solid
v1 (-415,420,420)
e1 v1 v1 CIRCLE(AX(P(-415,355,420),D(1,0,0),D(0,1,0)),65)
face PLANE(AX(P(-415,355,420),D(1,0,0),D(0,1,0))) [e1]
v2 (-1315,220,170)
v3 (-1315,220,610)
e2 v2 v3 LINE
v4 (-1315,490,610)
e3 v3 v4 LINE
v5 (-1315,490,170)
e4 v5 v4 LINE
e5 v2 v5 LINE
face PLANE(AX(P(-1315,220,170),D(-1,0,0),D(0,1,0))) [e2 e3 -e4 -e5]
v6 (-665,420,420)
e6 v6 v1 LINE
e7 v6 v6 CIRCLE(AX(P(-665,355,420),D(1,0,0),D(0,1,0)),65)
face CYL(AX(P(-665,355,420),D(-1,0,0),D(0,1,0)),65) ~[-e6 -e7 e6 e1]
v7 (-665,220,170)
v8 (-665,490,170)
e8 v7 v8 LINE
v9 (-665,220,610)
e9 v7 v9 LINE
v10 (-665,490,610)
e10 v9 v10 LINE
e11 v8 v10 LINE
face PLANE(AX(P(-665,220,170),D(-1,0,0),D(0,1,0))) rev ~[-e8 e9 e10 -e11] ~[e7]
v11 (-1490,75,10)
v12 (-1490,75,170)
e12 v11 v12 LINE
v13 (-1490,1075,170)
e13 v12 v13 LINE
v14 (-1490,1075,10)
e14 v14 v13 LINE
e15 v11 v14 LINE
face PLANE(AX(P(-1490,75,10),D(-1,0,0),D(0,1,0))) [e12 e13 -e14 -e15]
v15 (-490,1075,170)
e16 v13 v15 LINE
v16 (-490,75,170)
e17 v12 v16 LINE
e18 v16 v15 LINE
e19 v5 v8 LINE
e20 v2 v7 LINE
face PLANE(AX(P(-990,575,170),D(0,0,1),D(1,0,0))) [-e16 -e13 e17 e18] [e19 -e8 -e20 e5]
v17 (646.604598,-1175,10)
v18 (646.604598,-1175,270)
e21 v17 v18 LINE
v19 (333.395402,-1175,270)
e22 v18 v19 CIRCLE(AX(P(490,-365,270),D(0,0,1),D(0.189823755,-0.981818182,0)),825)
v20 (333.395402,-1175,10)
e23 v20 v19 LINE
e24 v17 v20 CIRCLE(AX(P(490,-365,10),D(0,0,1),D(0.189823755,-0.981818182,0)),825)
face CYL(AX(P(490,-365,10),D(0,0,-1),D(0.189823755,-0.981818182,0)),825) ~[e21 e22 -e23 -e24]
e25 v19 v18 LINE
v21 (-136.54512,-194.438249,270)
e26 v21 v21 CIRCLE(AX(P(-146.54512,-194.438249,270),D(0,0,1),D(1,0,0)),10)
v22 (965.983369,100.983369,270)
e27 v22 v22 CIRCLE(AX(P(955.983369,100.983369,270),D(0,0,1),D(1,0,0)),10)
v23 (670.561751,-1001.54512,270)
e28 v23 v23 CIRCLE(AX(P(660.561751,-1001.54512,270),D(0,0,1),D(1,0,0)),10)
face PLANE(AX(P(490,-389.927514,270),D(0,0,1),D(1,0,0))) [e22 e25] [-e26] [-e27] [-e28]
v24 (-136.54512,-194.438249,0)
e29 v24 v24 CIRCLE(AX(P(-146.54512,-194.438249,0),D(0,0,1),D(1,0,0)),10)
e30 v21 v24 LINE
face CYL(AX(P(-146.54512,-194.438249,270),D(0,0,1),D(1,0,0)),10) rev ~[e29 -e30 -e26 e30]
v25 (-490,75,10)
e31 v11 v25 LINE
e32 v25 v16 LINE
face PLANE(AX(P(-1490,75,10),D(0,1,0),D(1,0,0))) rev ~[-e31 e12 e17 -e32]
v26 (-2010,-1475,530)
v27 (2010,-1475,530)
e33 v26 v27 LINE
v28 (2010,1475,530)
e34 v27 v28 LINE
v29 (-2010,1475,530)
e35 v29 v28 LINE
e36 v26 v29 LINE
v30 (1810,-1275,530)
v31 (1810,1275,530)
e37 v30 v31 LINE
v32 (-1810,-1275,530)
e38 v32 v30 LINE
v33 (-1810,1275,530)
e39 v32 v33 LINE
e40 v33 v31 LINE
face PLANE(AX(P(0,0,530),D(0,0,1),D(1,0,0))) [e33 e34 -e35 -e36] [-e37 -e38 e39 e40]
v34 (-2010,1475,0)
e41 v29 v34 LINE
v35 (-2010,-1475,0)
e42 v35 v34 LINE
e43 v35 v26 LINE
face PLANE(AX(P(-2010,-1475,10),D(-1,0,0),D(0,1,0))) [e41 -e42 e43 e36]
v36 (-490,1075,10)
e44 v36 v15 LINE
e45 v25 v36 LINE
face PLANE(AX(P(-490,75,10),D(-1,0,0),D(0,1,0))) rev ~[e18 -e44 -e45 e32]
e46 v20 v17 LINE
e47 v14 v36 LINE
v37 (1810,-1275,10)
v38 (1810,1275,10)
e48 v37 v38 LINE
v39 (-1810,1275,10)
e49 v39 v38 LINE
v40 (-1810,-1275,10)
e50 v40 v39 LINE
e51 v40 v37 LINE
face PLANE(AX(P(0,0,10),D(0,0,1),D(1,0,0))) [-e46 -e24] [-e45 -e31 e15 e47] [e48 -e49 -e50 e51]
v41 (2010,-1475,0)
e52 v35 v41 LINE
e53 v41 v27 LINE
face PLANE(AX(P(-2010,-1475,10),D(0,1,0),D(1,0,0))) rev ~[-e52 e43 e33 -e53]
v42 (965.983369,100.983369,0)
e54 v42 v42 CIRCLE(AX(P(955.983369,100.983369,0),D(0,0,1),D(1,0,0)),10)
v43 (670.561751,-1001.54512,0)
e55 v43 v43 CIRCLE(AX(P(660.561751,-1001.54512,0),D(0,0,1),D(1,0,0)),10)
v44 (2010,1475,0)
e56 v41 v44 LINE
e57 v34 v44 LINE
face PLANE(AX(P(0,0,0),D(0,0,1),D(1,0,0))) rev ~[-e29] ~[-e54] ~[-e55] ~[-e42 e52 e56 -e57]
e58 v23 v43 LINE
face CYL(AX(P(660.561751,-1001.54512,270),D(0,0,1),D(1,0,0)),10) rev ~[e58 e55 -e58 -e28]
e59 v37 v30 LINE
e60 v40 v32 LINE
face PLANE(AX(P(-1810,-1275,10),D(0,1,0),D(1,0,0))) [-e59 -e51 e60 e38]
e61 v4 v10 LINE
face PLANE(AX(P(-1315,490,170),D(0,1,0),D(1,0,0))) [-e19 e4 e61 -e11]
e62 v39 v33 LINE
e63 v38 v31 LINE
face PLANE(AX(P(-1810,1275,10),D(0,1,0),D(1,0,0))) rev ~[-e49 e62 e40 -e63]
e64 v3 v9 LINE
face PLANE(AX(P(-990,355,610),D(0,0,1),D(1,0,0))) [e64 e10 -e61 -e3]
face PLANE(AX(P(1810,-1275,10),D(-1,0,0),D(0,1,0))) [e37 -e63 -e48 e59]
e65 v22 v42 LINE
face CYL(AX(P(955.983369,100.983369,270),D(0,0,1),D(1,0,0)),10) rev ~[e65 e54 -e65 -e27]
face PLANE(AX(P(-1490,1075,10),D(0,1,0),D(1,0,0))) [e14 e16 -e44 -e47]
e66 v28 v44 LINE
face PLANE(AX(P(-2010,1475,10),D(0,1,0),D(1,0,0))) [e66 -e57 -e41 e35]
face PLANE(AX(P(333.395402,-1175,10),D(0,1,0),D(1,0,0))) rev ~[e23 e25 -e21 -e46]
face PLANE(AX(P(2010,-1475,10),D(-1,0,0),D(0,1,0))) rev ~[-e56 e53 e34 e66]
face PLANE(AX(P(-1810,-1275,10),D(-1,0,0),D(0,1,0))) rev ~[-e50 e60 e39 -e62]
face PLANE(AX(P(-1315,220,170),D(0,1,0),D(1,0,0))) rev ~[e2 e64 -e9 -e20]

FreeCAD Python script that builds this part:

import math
import FreeCAD as App
import Part
import Sketcher
from FreeCAD import Vector
Q = App.Units.Quantity

doc = App.newDocument("Part")
params = doc.addObject("Spreadsheet::Sheet", "Params")
for row, (alias, value) in enumerate([
    ("sketch1_width", "4020 mm"),
    ("sketch1_height", "2950 mm"),
    ("pad1_length", "10 mm"),
    ("sketch2_width", "4020 mm"),
    ("sketch2_width2", "3620 mm"),
    ("sketch2_height", "2950 mm"),
    ("sketch2_height2", "2550 mm"),
    ("pad2_length", "520 mm"),
    ("sketch3_width", "1000 mm"),
    ("pad3_length", "160 mm"),
    ("sketch4_radius", "825 mm"),
    ("pad4_length", "260 mm"),
    ("sketch5_width", "650 mm"),
    ("sketch5_height", "270 mm"),
    ("pad5_length", "440 mm"),
    ("sketch6_diameter", "130 mm"),
    ("pad6_length", "250 mm"),
    ("sketch7_diameter", "20 mm"),
    ("pocket1_length", "280 mm"),
], start=1):
    params.set(f"A{row}", alias)
    params.set(f"B{row}", "=" + value)
    params.setAlias(f"B{row}", alias)

body = doc.addObject("PartDesign::Body", "Body")

# Sketch on XY plane
sketch1 = body.newObject("Sketcher::SketchObject", "Sketch")
sketch1.AttachmentSupport = (doc.getObject("XY_Plane"), [""])
sketch1.MapMode = "FlatFace"
sketch1.addGeometry([
    Part.LineSegment(Vector(-2010, 1475, 0), Vector(-2010, -1475, 0)),
    Part.LineSegment(Vector(-2010, -1475, 0), Vector(2010, -1475, 0)),
    Part.LineSegment(Vector(2010, -1475, 0), Vector(2010, 1475, 0)),
    Part.LineSegment(Vector(2010, 1475, 0), Vector(-2010, 1475, 0)),
], False)
sketch1.addConstraint([
    Sketcher.Constraint("Coincident", 0, 2, 1, 1),
    Sketcher.Constraint("Coincident", 1, 2, 2, 1),
    Sketcher.Constraint("Coincident", 2, 2, 3, 1),
    Sketcher.Constraint("Coincident", 3, 2, 0, 1),
    Sketcher.Constraint("Vertical", 0),
    Sketcher.Constraint("Horizontal", 1),
    Sketcher.Constraint("Vertical", 2),
    Sketcher.Constraint("Horizontal", 3),
    Sketcher.Constraint("Symmetric", 0, 2, 2, 2, -1, 1),
    Sketcher.Constraint("DistanceX", 1, 1, 1, 2, Q("4020 mm")),
    Sketcher.Constraint("DistanceY", 0, 2, 0, 1, Q("2950 mm")),
])
sketch1.setExpression("Constraints[9]", "Params.sketch1_width")
sketch1.setExpression("Constraints[10]", "Params.sketch1_height")
pad1 = body.newObject("PartDesign::Pad", "Pad")
pad1.Profile = sketch1
pad1.setExpression("Length", "Params.pad1_length")

# Sketch on XY plane
sketch2 = body.newObject("Sketcher::SketchObject", "Sketch001")
sketch2.AttachmentSupport = (doc.getObject("XY_Plane"), [""])
sketch2.MapMode = "FlatFace"
sketch2.AttachmentOffset = App.Placement(Vector(0, 0, 10), App.Rotation())
sketch2.addGeometry([
    Part.LineSegment(Vector(-2010, 1475, 0), Vector(-2010, -1475, 0)),  # 0
    Part.LineSegment(Vector(-2010, -1475, 0), Vector(2010, -1475, 0)),  # 1
    Part.LineSegment(Vector(2010, -1475, 0), Vector(2010, 1475, 0)),  # 2
    Part.LineSegment(Vector(2010, 1475, 0), Vector(-2010, 1475, 0)),  # 3
    Part.LineSegment(Vector(1810, -1275, 0), Vector(-1810, -1275, 0)),  # 4
    Part.LineSegment(Vector(-1810, -1275, 0), Vector(-1810, 1275, 0)),  # 5
    Part.LineSegment(Vector(-1810, 1275, 0), Vector(1810, 1275, 0)),  # 6
    Part.LineSegment(Vector(1810, 1275, 0), Vector(1810, -1275, 0)),  # 7
], False)
sketch2.addConstraint([
    Sketcher.Constraint("Coincident", 0, 2, 1, 1),
    Sketcher.Constraint("Coincident", 1, 2, 2, 1),
    Sketcher.Constraint("Coincident", 2, 2, 3, 1),
    Sketcher.Constraint("Coincident", 3, 2, 0, 1),
    Sketcher.Constraint("Coincident", 4, 2, 5, 1),
    Sketcher.Constraint("Coincident", 5, 2, 6, 1),
    Sketcher.Constraint("Coincident", 6, 2, 7, 1),
    Sketcher.Constraint("Coincident", 7, 2, 4, 1),
    Sketcher.Constraint("Vertical", 0),
    Sketcher.Constraint("Horizontal", 1),
    Sketcher.Constraint("Vertical", 2),
    Sketcher.Constraint("Horizontal", 3),
    Sketcher.Constraint("Horizontal", 4),
    Sketcher.Constraint("Vertical", 5),
    Sketcher.Constraint("Horizontal", 6),
    Sketcher.Constraint("Vertical", 7),
    Sketcher.Constraint("Symmetric", 0, 2, 2, 2, -1, 1),
    Sketcher.Constraint("Symmetric", 4, 2, 6, 2, -1, 1),
    Sketcher.Constraint("DistanceX", 1, 1, 1, 2, Q("4020 mm")),
    Sketcher.Constraint("DistanceX", 4, 2, 4, 1, Q("3620 mm")),
    Sketcher.Constraint("DistanceY", 0, 2, 0, 1, Q("2950 mm")),
    Sketcher.Constraint("DistanceY", 5, 1, 5, 2, Q("2550 mm")),
])
sketch2.setExpression("Constraints[18]", "Params.sketch2_width")
sketch2.setExpression("Constraints[19]", "Params.sketch2_width2")
sketch2.setExpression("Constraints[20]", "Params.sketch2_height")
sketch2.setExpression("Constraints[21]", "Params.sketch2_height2")
pad2 = body.newObject("PartDesign::Pad", "Pad001")
pad2.Profile = sketch2
pad2.setExpression("Length", "Params.pad2_length")

# Sketch on XY plane
sketch3 = body.newObject("Sketcher::SketchObject", "Sketch002")
sketch3.AttachmentSupport = (doc.getObject("XY_Plane"), [""])
sketch3.MapMode = "FlatFace"
sketch3.AttachmentOffset = App.Placement(Vector(0, 0, 10), App.Rotation())
sketch3.addGeometry([
    Part.LineSegment(Vector(-1490, 1075, 0), Vector(-1490, 75, 0)),
    Part.LineSegment(Vector(-1490, 75, 0), Vector(-490, 75, 0)),
    Part.LineSegment(Vector(-490, 75, 0), Vector(-490, 1075, 0)),
    Part.LineSegment(Vector(-490, 1075, 0), Vector(-1490, 1075, 0)),
], False)
sketch3.addConstraint([
    Sketcher.Constraint("Coincident", 0, 2, 1, 1),
    Sketcher.Constraint("Coincident", 1, 2, 2, 1),
    Sketcher.Constraint("Coincident", 2, 2, 3, 1),
    Sketcher.Constraint("Coincident", 3, 2, 0, 1),
    Sketcher.Constraint("Vertical", 0),
    Sketcher.Constraint("Horizontal", 1),
    Sketcher.Constraint("Vertical", 2),
    Sketcher.Constraint("Horizontal", 3),
    Sketcher.Constraint("Equal", 3, 0),
    Sketcher.Constraint("DistanceX", 1, 1, 1, 2, Q("1000 mm")),
    Sketcher.Constraint("DistanceX", 0, 2, -1, 1, Q("1490 mm")),
    Sketcher.Constraint("DistanceY", -1, 1, 0, 2, Q("75 mm")),
])
sketch3.setExpression("Constraints[9]", "Params.sketch3_width")
pad3 = body.newObject("PartDesign::Pad", "Pad002")
pad3.Profile = sketch3
pad3.setExpression("Length", "Params.pad3_length")

# Sketch on XY plane
sketch4 = body.newObject("Sketcher::SketchObject", "Sketch003")
sketch4.AttachmentSupport = (doc.getObject("XY_Plane"), [""])
sketch4.MapMode = "FlatFace"
sketch4.AttachmentOffset = App.Placement(Vector(0, 0, 10), App.Rotation())
sketch4.addGeometry([
    Part.LineSegment(Vector(333, -1175, 0), Vector(647, -1175, 0)),
    Part.ArcOfCircle(Part.Circle(Vector(490, -365, 0), Vector(0, 0, 1), 825), math.radians(-79), math.radians(259)),
], False)
sketch4.addConstraint([
    Sketcher.Constraint("Coincident", 0, 1, 1, 2),
    Sketcher.Constraint("Coincident", 1, 1, 0, 2),
    Sketcher.Constraint("Horizontal", 0),
    Sketcher.Constraint("Radius", 1, Q("825 mm")),
    Sketcher.Constraint("DistanceX", -1, 1, 1, 3, Q("490 mm")),
    Sketcher.Constraint("DistanceY", 1, 3, -1, 1, Q("365 mm")),
    Sketcher.Constraint("DistanceY", 0, 1, -1, 1, Q("1175 mm")),
])
sketch4.setExpression("Constraints[3]", "Params.sketch4_radius")
pad4 = body.newObject("PartDesign::Pad", "Pad003")
pad4.Profile = sketch4
pad4.setExpression("Length", "Params.pad4_length")

# Sketch on XY plane
sketch5 = body.newObject("Sketcher::SketchObject", "Sketch004")
sketch5.AttachmentSupport = (doc.getObject("XY_Plane"), [""])
sketch5.MapMode = "FlatFace"
sketch5.AttachmentOffset = App.Placement(Vector(0, 0, 170), App.Rotation())
sketch5.addGeometry([
    Part.LineSegment(Vector(-1315, 490, 0), Vector(-1315, 220, 0)),
    Part.LineSegment(Vector(-1315, 220, 0), Vector(-665, 220, 0)),
    Part.LineSegment(Vector(-665, 220, 0), Vector(-665, 490, 0)),
    Part.LineSegment(Vector(-665, 490, 0), Vector(-1315, 490, 0)),
], False)
sketch5.addConstraint([
    Sketcher.Constraint("Coincident", 0, 2, 1, 1),
    Sketcher.Constraint("Coincident", 1, 2, 2, 1),
    Sketcher.Constraint("Coincident", 2, 2, 3, 1),
    Sketcher.Constraint("Coincident", 3, 2, 0, 1),
    Sketcher.Constraint("Vertical", 0),
    Sketcher.Constraint("Horizontal", 1),
    Sketcher.Constraint("Vertical", 2),
    Sketcher.Constraint("Horizontal", 3),
    Sketcher.Constraint("DistanceX", 1, 1, 1, 2, Q("650 mm")),
    Sketcher.Constraint("DistanceY", 0, 2, 0, 1, Q("270 mm")),
    Sketcher.Constraint("DistanceX", 0, 2, -1, 1, Q("1315 mm")),
    Sketcher.Constraint("DistanceY", -1, 1, 0, 2, Q("220 mm")),
])
sketch5.setExpression("Constraints[8]", "Params.sketch5_width")
sketch5.setExpression("Constraints[9]", "Params.sketch5_height")
pad5 = body.newObject("PartDesign::Pad", "Pad004")
pad5.Profile = sketch5
pad5.setExpression("Length", "Params.pad5_length")

# Sketch on YZ plane
sketch6 = body.newObject("Sketcher::SketchObject", "Sketch005")
sketch6.AttachmentSupport = (doc.getObject("YZ_Plane"), [""])
sketch6.MapMode = "FlatFace"
sketch6.AttachmentOffset = App.Placement(Vector(0, 0, -665), App.Rotation())
sketch6.addGeometry(Part.Circle(Vector(355, 420, 0), Vector(0, 0, 1), 65), False)
sketch6.addConstraint([
    Sketcher.Constraint("Diameter", 0, Q("130 mm")),
    Sketcher.Constraint("DistanceX", -1, 1, 0, 3, Q("355 mm")),
    Sketcher.Constraint("DistanceY", -1, 1, 0, 3, Q("420 mm")),
])
sketch6.setExpression("Constraints[0]", "Params.sketch6_diameter")
pad6 = body.newObject("PartDesign::Pad", "Pad005")
pad6.Profile = sketch6
pad6.setExpression("Length", "Params.pad6_length")

# Sketch on XY plane
sketch7 = body.newObject("Sketcher::SketchObject", "Sketch006")
sketch7.AttachmentSupport = (doc.getObject("XY_Plane"), [""])
sketch7.MapMode = "FlatFace"
sketch7.AttachmentOffset = App.Placement(Vector(0, 0, 270), App.Rotation())
sketch7.addGeometry([
    Part.Circle(Vector(956, 101, 0), Vector(0, 0, 1), 10),
    Part.Circle(Vector(661, -1002, 0), Vector(0, 0, 1), 10),
    Part.Circle(Vector(-147, -194, 0), Vector(0, 0, 1), 10),
], False)
sketch7.addConstraint([
    Sketcher.Constraint("Equal", 0, 1),
    Sketcher.Constraint("Equal", 1, 2),
    Sketcher.Constraint("Diameter", 0, Q("20 mm")),
    Sketcher.Constraint("DistanceX", -1, 1, 0, 3, Q("955.983369 mm")),
    Sketcher.Constraint("DistanceY", -1, 1, 0, 3, Q("100.983369 mm")),
    Sketcher.Constraint("DistanceX", -1, 1, 1, 3, Q("660.561751 mm")),
    Sketcher.Constraint("DistanceY", 1, 3, -1, 1, Q("1001.54512 mm")),
    Sketcher.Constraint("DistanceX", 2, 3, -1, 1, Q("146.54512 mm")),
    Sketcher.Constraint("DistanceY", 2, 3, -1, 1, Q("194.438249 mm")),
])
sketch7.setExpression("Constraints[2]", "Params.sketch7_diameter")
pocket1 = body.newObject("PartDesign::Pocket", "Pocket")
pocket1.Profile = sketch7
pocket1.setExpression("Length", "Params.pocket1_length")

doc.recompute()
